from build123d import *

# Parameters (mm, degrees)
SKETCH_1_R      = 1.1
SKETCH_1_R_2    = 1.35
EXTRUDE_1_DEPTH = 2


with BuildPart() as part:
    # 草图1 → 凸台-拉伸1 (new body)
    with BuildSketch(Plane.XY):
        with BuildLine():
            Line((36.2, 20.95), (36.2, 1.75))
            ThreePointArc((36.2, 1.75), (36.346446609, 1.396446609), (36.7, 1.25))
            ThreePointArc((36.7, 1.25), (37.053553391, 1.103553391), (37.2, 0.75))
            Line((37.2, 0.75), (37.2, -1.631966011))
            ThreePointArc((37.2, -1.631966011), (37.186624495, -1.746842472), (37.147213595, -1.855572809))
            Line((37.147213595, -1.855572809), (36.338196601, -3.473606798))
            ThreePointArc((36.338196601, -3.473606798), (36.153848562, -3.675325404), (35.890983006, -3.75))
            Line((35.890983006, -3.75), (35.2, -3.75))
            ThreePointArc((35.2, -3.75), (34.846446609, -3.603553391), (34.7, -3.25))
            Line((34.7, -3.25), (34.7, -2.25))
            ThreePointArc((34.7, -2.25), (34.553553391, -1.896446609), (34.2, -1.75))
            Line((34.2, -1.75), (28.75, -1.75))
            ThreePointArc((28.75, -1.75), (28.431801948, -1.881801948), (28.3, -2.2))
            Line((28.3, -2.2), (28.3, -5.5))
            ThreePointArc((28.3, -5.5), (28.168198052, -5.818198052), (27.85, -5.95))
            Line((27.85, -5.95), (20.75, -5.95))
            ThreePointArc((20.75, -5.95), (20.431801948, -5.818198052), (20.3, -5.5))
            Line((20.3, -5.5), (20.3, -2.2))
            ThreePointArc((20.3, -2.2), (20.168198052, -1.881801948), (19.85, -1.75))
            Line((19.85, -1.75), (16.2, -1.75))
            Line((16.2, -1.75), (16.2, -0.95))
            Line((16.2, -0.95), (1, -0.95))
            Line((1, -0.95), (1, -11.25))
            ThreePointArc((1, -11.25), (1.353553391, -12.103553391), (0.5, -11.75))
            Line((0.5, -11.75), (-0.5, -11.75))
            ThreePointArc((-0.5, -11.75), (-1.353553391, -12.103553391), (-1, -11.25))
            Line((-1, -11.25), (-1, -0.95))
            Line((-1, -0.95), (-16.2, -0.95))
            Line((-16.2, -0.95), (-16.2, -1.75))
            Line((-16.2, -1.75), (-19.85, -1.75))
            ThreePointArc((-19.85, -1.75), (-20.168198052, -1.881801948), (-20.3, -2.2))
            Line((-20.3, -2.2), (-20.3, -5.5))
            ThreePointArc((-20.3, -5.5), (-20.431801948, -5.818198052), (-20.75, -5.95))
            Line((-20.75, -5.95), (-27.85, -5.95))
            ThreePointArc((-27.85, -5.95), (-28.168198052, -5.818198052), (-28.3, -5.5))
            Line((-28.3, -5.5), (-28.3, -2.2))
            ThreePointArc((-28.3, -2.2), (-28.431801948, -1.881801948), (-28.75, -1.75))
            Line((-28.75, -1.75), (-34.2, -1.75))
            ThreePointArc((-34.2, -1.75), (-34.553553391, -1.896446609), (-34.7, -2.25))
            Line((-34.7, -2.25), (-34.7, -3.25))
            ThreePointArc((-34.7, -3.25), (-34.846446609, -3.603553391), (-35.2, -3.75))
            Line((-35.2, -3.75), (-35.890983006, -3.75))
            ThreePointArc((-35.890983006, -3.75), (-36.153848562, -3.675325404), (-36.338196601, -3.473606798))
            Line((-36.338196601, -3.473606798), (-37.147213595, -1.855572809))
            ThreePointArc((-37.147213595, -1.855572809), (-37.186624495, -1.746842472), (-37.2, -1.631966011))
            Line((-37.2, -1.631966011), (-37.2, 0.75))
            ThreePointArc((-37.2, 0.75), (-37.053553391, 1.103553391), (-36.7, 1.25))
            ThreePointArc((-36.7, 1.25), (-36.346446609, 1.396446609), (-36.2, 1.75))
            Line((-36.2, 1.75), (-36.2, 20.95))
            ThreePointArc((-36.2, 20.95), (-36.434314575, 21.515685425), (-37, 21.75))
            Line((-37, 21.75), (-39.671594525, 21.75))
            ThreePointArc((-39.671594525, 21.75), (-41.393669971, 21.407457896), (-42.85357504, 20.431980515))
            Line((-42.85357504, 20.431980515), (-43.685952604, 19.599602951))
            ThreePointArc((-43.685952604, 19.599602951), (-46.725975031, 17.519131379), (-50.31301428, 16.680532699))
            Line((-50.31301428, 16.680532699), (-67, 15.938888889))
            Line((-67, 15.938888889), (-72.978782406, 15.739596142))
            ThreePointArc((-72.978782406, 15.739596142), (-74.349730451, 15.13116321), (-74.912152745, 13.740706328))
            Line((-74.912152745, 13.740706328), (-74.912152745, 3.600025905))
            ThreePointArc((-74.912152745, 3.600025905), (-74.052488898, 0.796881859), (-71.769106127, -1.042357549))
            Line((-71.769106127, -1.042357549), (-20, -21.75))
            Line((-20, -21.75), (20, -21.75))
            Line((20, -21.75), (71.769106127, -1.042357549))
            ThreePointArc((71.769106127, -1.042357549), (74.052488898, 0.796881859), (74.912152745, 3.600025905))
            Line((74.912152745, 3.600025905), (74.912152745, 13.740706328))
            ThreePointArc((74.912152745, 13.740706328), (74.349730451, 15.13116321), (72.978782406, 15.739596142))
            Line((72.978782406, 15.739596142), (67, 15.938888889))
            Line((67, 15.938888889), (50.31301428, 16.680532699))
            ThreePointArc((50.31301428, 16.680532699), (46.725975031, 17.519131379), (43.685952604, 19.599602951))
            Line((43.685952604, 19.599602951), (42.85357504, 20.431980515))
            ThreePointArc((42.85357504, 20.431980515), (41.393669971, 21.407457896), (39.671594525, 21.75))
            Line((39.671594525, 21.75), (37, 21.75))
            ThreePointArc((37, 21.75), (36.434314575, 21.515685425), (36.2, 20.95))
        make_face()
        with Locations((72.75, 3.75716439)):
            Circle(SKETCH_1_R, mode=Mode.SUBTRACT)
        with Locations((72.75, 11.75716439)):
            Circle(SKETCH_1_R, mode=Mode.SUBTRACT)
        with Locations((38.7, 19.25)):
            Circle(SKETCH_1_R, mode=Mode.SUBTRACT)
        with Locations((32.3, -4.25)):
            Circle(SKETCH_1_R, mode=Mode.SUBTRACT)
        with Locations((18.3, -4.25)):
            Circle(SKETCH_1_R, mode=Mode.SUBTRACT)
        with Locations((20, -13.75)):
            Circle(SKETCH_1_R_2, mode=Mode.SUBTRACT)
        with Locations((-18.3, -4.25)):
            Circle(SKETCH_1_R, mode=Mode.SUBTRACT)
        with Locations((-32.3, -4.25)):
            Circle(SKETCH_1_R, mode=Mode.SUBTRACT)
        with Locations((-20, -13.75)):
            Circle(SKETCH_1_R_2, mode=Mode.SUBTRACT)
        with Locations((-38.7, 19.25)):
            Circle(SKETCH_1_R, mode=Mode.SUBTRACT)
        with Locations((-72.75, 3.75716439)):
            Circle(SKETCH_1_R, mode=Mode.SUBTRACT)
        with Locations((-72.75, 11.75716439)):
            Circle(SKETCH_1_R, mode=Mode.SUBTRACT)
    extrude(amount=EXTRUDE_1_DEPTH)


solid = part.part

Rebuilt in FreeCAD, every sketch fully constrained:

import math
import FreeCAD as App
import Part
import Sketcher
from FreeCAD import Vector
Q = App.Units.Quantity

doc = App.newDocument("Part")
body = doc.addObject("PartDesign::Body", "Body")

# Sketch on XY plane
sketch1 = doc.addObject("Sketcher::SketchObject", "Sketch")
body.addObject(sketch1)
sketch1.AttachmentSupport = (doc.XY_Plane, [""])
sketch1.MapMode = "FlatFace"
sketch1.addGeometry([
    Part.LineSegment(Vector(36.2, 20.95, 0), Vector(36.2, 1.75, 0)),  # 0
    Part.ArcOfCircle(Part.Circle(Vector(36.7, 1.75, 0), Vector(0, 0, 1), 0.5), math.radians(180), math.radians(270)),  # 1
    Part.ArcOfCircle(Part.Circle(Vector(36.7, 0.75, 0), Vector(0, 0, 1), 0.5), math.radians(0), math.radians(90)),  # 2
    Part.LineSegment(Vector(37.2, 0.75, 0), Vector(37.2, -1.631966, 0)),  # 3
    Part.ArcOfCircle(Part.Circle(Vector(36.7, -1.631966, 0), Vector(0, 0, 1), 0.5), math.radians(-26.565052), math.radians(0)),  # 4
    Part.LineSegment(Vector(37.147214, -1.855573, 0), Vector(36.338197, -3.473607, 0)),  # 5
    Part.ArcOfCircle(Part.Circle(Vector(35.890983, -3.25, 0), Vector(0, 0, 1), 0.5), math.radians(-90), math.radians(-26.565051)),  # 6
    Part.LineSegment(Vector(35.890983, -3.75, 0), Vector(35.2, -3.75, 0)),  # 7
    Part.ArcOfCircle(Part.Circle(Vector(35.2, -3.25, 0), Vector(0, 0, 1), 0.5), math.radians(180), math.radians(270)),  # 8
    Part.LineSegment(Vector(34.7, -3.25, 0), Vector(34.7, -2.25, 0)),  # 9
    Part.ArcOfCircle(Part.Circle(Vector(34.2, -2.25, 0), Vector(0, 0, 1), 0.5), math.radians(0), math.radians(90)),  # 10
    Part.LineSegment(Vector(34.2, -1.75, 0), Vector(28.75, -1.75, 0)),  # 11
    Part.ArcOfCircle(Part.Circle(Vector(28.75, -2.2, 0), Vector(0, 0, 1), 0.45), math.radians(90), math.radians(180)),  # 12
    Part.LineSegment(Vector(28.3, -2.2, 0), Vector(28.3, -5.5, 0)),  # 13
    Part.ArcOfCircle(Part.Circle(Vector(27.85, -5.5, 0), Vector(0, 0, 1), 0.45), math.radians(-90), math.radians(0)),  # 14
    Part.LineSegment(Vector(27.85, -5.95, 0), Vector(20.75, -5.95, 0)),  # 15
    Part.ArcOfCircle(Part.Circle(Vector(20.75, -5.5, 0), Vector(0, 0, 1), 0.45), math.radians(180), math.radians(270)),  # 16
    Part.LineSegment(Vector(20.3, -5.5, 0), Vector(20.3, -2.2, 0)),  # 17
    Part.ArcOfCircle(Part.Circle(Vector(19.85, -2.2, 0), Vector(0, 0, 1), 0.45), math.radians(0), math.radians(90)),  # 18
    Part.LineSegment(Vector(19.85, -1.75, 0), Vector(16.2, -1.75, 0)),  # 19
    Part.LineSegment(Vector(16.2, -1.75, 0), Vector(16.2, -0.95, 0)),  # 20
    Part.LineSegment(Vector(16.2, -0.95, 0), Vector(1, -0.95, 0)),  # 21
    Part.LineSegment(Vector(1, -0.95, 0), Vector(1, -11.25, 0)),  # 22
    Part.ArcOfCircle(Part.Circle(Vector(1, -11.75, 0), Vector(0, 0, 1), 0.5), math.radians(180), math.radians(450)),  # 23
    Part.LineSegment(Vector(0.5, -11.75, 0), Vector(-0.5, -11.75, 0)),  # 24
    Part.ArcOfCircle(Part.Circle(Vector(-1, -11.75, 0), Vector(0, 0, 1), 0.5), math.radians(90), math.radians(360)),  # 25
    Part.LineSegment(Vector(-1, -11.25, 0), Vector(-1, -0.95, 0)),  # 26
    Part.LineSegment(Vector(-1, -0.95, 0), Vector(-16.2, -0.95, 0)),  # 27
    Part.LineSegment(Vector(-16.2, -0.95, 0), Vector(-16.2, -1.75, 0)),  # 28
    Part.LineSegment(Vector(-16.2, -1.75, 0), Vector(-19.85, -1.75, 0)),  # 29
    Part.ArcOfCircle(Part.Circle(Vector(-19.85, -2.2, 0), Vector(0, 0, 1), 0.45), math.radians(90), math.radians(180)),  # 30
    Part.LineSegment(Vector(-20.3, -2.2, 0), Vector(-20.3, -5.5, 0)),  # 31
    Part.ArcOfCircle(Part.Circle(Vector(-20.75, -5.5, 0), Vector(0, 0, 1), 0.45), math.radians(-90), math.radians(0)),  # 32
    Part.LineSegment(Vector(-20.75, -5.95, 0), Vector(-27.85, -5.95, 0)),  # 33
    Part.ArcOfCircle(Part.Circle(Vector(-27.85, -5.5, 0), Vector(0, 0, 1), 0.45), math.radians(180), math.radians(270)),  # 34
    Part.LineSegment(Vector(-28.3, -5.5, 0), Vector(-28.3, -2.2, 0)),  # 35
    Part.ArcOfCircle(Part.Circle(Vector(-28.75, -2.2, 0), Vector(0, 0, 1), 0.45), math.radians(0), math.radians(90)),  # 36
    Part.LineSegment(Vector(-28.75, -1.75, 0), Vector(-34.2, -1.75, 0)),  # 37
    Part.ArcOfCircle(Part.Circle(Vector(-34.2, -2.25, 0), Vector(0, 0, 1), 0.5), math.radians(90), math.radians(180)),  # 38
    Part.LineSegment(Vector(-34.7, -2.25, 0), Vector(-34.7, -3.25, 0)),  # 39
    Part.ArcOfCircle(Part.Circle(Vector(-35.2, -3.25, 0), Vector(0, 0, 1), 0.5), math.radians(-90), math.radians(0)),  # 40
    Part.LineSegment(Vector(-35.2, -3.75, 0), Vector(-35.890983, -3.75, 0)),  # 41
    Part.ArcOfCircle(Part.Circle(Vector(-35.890983, -3.25, 0), Vector(0, 0, 1), 0.5), math.radians(-153.434949), math.radians(-90)),  # 42
    Part.LineSegment(Vector(-36.338197, -3.473607, 0), Vector(-37.147214, -1.855573, 0)),  # 43
    Part.ArcOfCircle(Part.Circle(Vector(-36.7, -1.631966, 0), Vector(0, 0, 1), 0.5), math.radians(180), math.radians(206.565052)),  # 44
    Part.LineSegment(Vector(-37.2, -1.631966, 0), Vector(-37.2, 0.75, 0)),  # 45
    Part.ArcOfCircle(Part.Circle(Vector(-36.7, 0.75, 0), Vector(0, 0, 1), 0.5), math.radians(90), math.radians(180)),  # 46
    Part.ArcOfCircle(Part.Circle(Vector(-36.7, 1.75, 0), Vector(0, 0, 1), 0.5), math.radians(-90), math.radians(0)),  # 47
    Part.LineSegment(Vector(-36.2, 1.75, 0), Vector(-36.2, 20.95, 0)),  # 48
    Part.ArcOfCircle(Part.Circle(Vector(-37, 20.95, 0), Vector(0, 0, 1), 0.8), math.radians(0), math.radians(90)),  # 49
    Part.LineSegment(Vector(-37, 21.75, 0), Vector(-39.671595, 21.75, 0)),  # 50
    Part.ArcOfCircle(Part.Circle(Vector(-39.671595, 17.25, 0), Vector(0, 0, 1), 4.5), math.radians(90), math.radians(135)),  # 51
    Part.LineSegment(Vector(-42.853575, 20.431981, 0), Vector(-43.685953, 19.599603, 0)),  # 52
    Part.ArcOfCircle(Part.Circle(Vector(-50.75702, 26.670671, 0), Vector(0, 0, 1), 10), math.radians(-87.455196), math.radians(-45)),  # 53
    Part.LineSegment(Vector(-50.313014, 16.680533, 0), Vector(-67, 15.938889, 0)),  # 54
    Part.LineSegment(Vector(-67, 15.938889, 0), Vector(-72.978782, 15.739596, 0)),  # 55
    Part.ArcOfCircle(Part.Circle(Vector(-72.912153, 13.740706, 0), Vector(0, 0, 1), 2), math.radians(91.909152), math.radians(180)),  # 56
    Part.LineSegment(Vector(-74.912153, 13.740706, 0), Vector(-74.912153, 3.600026, 0)),  # 57
    Part.ArcOfCircle(Part.Circle(Vector(-69.912153, 3.600026, 0), Vector(0, 0, 1), 5), math.radians(180), math.radians(248.198591)),  # 58
    Part.LineSegment(Vector(-71.769106, -1.042358, 0), Vector(-20, -21.75, 0)),  # 59
    Part.LineSegment(Vector(-20, -21.75, 0), Vector(20, -21.75, 0)),  # 60
    Part.LineSegment(Vector(20, -21.75, 0), Vector(71.769106, -1.042358, 0)),  # 61
    Part.ArcOfCircle(Part.Circle(Vector(69.912153, 3.600026, 0), Vector(0, 0, 1), 5), math.radians(-68.198591), math.radians(0)),  # 62
    Part.LineSegment(Vector(74.912153, 3.600026, 0), Vector(74.912153, 13.740706, 0)),  # 63
    Part.ArcOfCircle(Part.Circle(Vector(72.912153, 13.740706, 0), Vector(0, 0, 1), 2), math.radians(0), math.radians(88.090848)),  # 64
    Part.LineSegment(Vector(72.978782, 15.739596, 0), Vector(67, 15.938889, 0)),  # 65
    Part.LineSegment(Vector(67, 15.938889, 0), Vector(50.313014, 16.680533, 0)),  # 66
    Part.ArcOfCircle(Part.Circle(Vector(50.75702, 26.670671, 0), Vector(0, 0, 1), 10), math.radians(-135), math.radians(-92.544804)),  # 67
    Part.LineSegment(Vector(43.685953, 19.599603, 0), Vector(42.853575, 20.431981, 0)),  # 68
    Part.ArcOfCircle(Part.Circle(Vector(39.671595, 17.25, 0), Vector(0, 0, 1), 4.5), math.radians(45), math.radians(90)),  # 69
    Part.LineSegment(Vector(39.671595, 21.75, 0), Vector(37, 21.75, 0)),  # 70
    Part.ArcOfCircle(Part.Circle(Vector(37, 20.95, 0), Vector(0, 0, 1), 0.8), math.radians(90), math.radians(180)),  # 71
    Part.Circle(Vector(-20, -13.75, 0), Vector(0, 0, 1), 1.35),  # 72
    Part.Circle(Vector(-32.3, -4.25, 0), Vector(0, 0, 1), 1.1),  # 73
    Part.Circle(Vector(-18.3, -4.25, 0), Vector(0, 0, 1), 1.1),  # 74
    Part.Circle(Vector(20, -13.75, 0), Vector(0, 0, 1), 1.35),  # 75
    Part.Circle(Vector(18.3, -4.25, 0), Vector(0, 0, 1), 1.1),  # 76
    Part.Circle(Vector(32.3, -4.25, 0), Vector(0, 0, 1), 1.1),  # 77
    Part.Circle(Vector(-72.75, 3.757164, 0), Vector(0, 0, 1), 1.1),  # 78
    Part.Circle(Vector(-72.75, 11.757164, 0), Vector(0, 0, 1), 1.1),  # 79
    Part.Circle(Vector(-38.7, 19.25, 0), Vector(0, 0, 1), 1.1),  # 80
    Part.Circle(Vector(72.75, 3.757164, 0), Vector(0, 0, 1), 1.1),  # 81
    Part.Circle(Vector(72.75, 11.757164, 0), Vector(0, 0, 1), 1.1),  # 82
    Part.Circle(Vector(38.7, 19.25, 0), Vector(0, 0, 1), 1.1),  # 83
], False)
sketch1.addConstraint([
    Sketcher.Constraint("Tangent", 0, 2, 1, 1),
    Sketcher.Constraint("Tangent", 1, 2, 2, 2),
    Sketcher.Constraint("Tangent", 2, 1, 3, 1),
    Sketcher.Constraint("Tangent", 3, 2, 4, 2),
    Sketcher.Constraint("Tangent", 4, 1, 5, 1),
    Sketcher.Constraint("Tangent", 5, 2, 6, 2),
    Sketcher.Constraint("Tangent", 6, 1, 7, 1),
    Sketcher.Constraint("Tangent", 7, 2, 8, 2),
    Sketcher.Constraint("Tangent", 8, 1, 9, 1),
    Sketcher.Constraint("Tangent", 9, 2, 10, 1),
    Sketcher.Constraint("Tangent", 10, 2, 11, 1),
    Sketcher.Constraint("Tangent", 11, 2, 12, 1),
    Sketcher.Constraint("Tangent", 12, 2, 13, 1),
    Sketcher.Constraint("Tangent", 13, 2, 14, 2),
    Sketcher.Constraint("Tangent", 14, 1, 15, 1),
    Sketcher.Constraint("Tangent", 15, 2, 16, 2),
    Sketcher.Constraint("Tangent", 16, 1, 17, 1),
    Sketcher.Constraint("Tangent", 17, 2, 18, 1),
    Sketcher.Constraint("Tangent", 18, 2, 19, 1),
    Sketcher.Constraint("Coincident", 19, 2, 20, 1),
    Sketcher.Constraint("Coincident", 20, 2, 21, 1),
    Sketcher.Constraint("Coincident", 21, 2, 22, 1),
    Sketcher.Constraint("Coincident", 22, 2, 23, 2),
    Sketcher.Constraint("Coincident", 23, 1, 24, 1),
    Sketcher.Constraint("Coincident", 24, 2, 25, 2),
    Sketcher.Constraint("Coincident", 25, 1, 26, 1),
    Sketcher.Constraint("Coincident", 26, 2, 27, 1),
    Sketcher.Constraint("Coincident", 27, 2, 28, 1),
    Sketcher.Constraint("Coincident", 28, 2, 29, 1),
    Sketcher.Constraint("Tangent", 29, 2, 30, 1),
    Sketcher.Constraint("Tangent", 30, 2, 31, 1),
    Sketcher.Constraint("Tangent", 31, 2, 32, 2),
    Sketcher.Constraint("Tangent", 32, 1, 33, 1),
    Sketcher.Constraint("Tangent", 33, 2, 34, 2),
    Sketcher.Constraint("Tangent", 34, 1, 35, 1),
    Sketcher.Constraint("Tangent", 35, 2, 36, 1),
    Sketcher.Constraint("Tangent", 36, 2, 37, 1),
    Sketcher.Constraint("Tangent", 37, 2, 38, 1),
    Sketcher.Constraint("Tangent", 38, 2, 39, 1),
    Sketcher.Constraint("Tangent", 39, 2, 40, 2),
    Sketcher.Constraint("Tangent", 40, 1, 41, 1),
    Sketcher.Constraint("Tangent", 41, 2, 42, 2),
    Sketcher.Constraint("Tangent", 42, 1, 43, 1),
    Sketcher.Constraint("Tangent", 43, 2, 44, 2),
    Sketcher.Constraint("Tangent", 44, 1, 45, 1),
    Sketcher.Constraint("Tangent", 45, 2, 46, 2),
    Sketcher.Constraint("Tangent", 46, 1, 47, 1),
    Sketcher.Constraint("Tangent", 47, 2, 48, 1),
    Sketcher.Constraint("Tangent", 48, 2, 49, 1),
    Sketcher.Constraint("Tangent", 49, 2, 50, 1),
    Sketcher.Constraint("Tangent", 50, 2, 51, 1),
    Sketcher.Constraint("Tangent", 51, 2, 52, 1),
    Sketcher.Constraint("Tangent", 52, 2, 53, 2),
    Sketcher.Constraint("Tangent", 53, 1, 54, 1),
    Sketcher.Constraint("Coincident", 54, 2, 55, 1),
    Sketcher.Constraint("Tangent", 55, 2, 56, 1),
    Sketcher.Constraint("Tangent", 56, 2, 57, 1),
    Sketcher.Constraint("Tangent", 57, 2, 58, 1),
    Sketcher.Constraint("Tangent", 58, 2, 59, 1),
    Sketcher.Constraint("Coincident", 59, 2, 60, 1),
    Sketcher.Constraint("Coincident", 60, 2, 61, 1),
    Sketcher.Constraint("Tangent", 61, 2, 62, 1),
    Sketcher.Constraint("Tangent", 62, 2, 63, 1),
    Sketcher.Constraint("Tangent", 63, 2, 64, 1),
    Sketcher.Constraint("Tangent", 64, 2, 65, 1),
    Sketcher.Constraint("Coincident", 65, 2, 66, 1),
    Sketcher.Constraint("Tangent", 66, 2, 67, 2),
    Sketcher.Constraint("Tangent", 67, 1, 68, 1),
    Sketcher.Constraint("Tangent", 68, 2, 69, 1),
    Sketcher.Constraint("Tangent", 69, 2, 70, 1),
    Sketcher.Constraint("Tangent", 70, 2, 71, 1),
    Sketcher.Constraint("Tangent", 71, 2, 0, 1),
    Sketcher.Constraint("Vertical", 0),
    Sketcher.Constraint("Vertical", 3),
    Sketcher.Constraint("Horizontal", 7),
    Sketcher.Constraint("Vertical", 9),
    Sketcher.Constraint("Horizontal", 11),
    Sketcher.Constraint("Vertical", 13),
    Sketcher.Constraint("Horizontal", 15),
    Sketcher.Constraint("Vertical", 17),
    Sketcher.Constraint("Horizontal", 19),
    Sketcher.Constraint("Vertical", 20),
    Sketcher.Constraint("Horizontal", 21),
    Sketcher.Constraint("Vertical", 22),
    Sketcher.Constraint("Horizontal", 24),
    Sketcher.Constraint("Vertical", 26),
    Sketcher.Constraint("Horizontal", 27),
    Sketcher.Constraint("Vertical", 28),
    Sketcher.Constraint("Horizontal", 29),
    Sketcher.Constraint("Vertical", 31),
    Sketcher.Constraint("Horizontal", 33),
    Sketcher.Constraint("Vertical", 35),
    Sketcher.Constraint("Horizontal", 37),
    Sketcher.Constraint("Vertical", 39),
    Sketcher.Constraint("Horizontal", 41),
    Sketcher.Constraint("Vertical", 45),
    Sketcher.Constraint("Vertical", 48),
    Sketcher.Constraint("Horizontal", 50),
    Sketcher.Constraint("Vertical", 57),
    Sketcher.Constraint("Horizontal", 60),
    Sketcher.Constraint("Vertical", 63),
    Sketcher.Constraint("Horizontal", 70),
    Sketcher.Constraint("Equal", 1, 2),
    Sketcher.Constraint("Equal", 2, 4),
    Sketcher.Constraint("Equal", 4, 6),
    Sketcher.Constraint("Equal", 6, 8),
    Sketcher.Constraint("Equal", 8, 10),
    Sketcher.Constraint("Equal", 12, 14),
    Sketcher.Constraint("Equal", 14, 16),
    Sketcher.Constraint("Equal", 16, 18),
    Sketcher.Constraint("Equal", 10, 23),
    Sketcher.Constraint("Equal", 23, 25),
    Sketcher.Constraint("Equal", 18, 30),
    Sketcher.Constraint("Equal", 30, 32),
    Sketcher.Constraint("Equal", 32, 34),
    Sketcher.Constraint("Equal", 34, 36),
    Sketcher.Constraint("Equal", 25, 38),
    Sketcher.Constraint("Equal", 38, 40),
    Sketcher.Constraint("Equal", 40, 42),
    Sketcher.Constraint("Equal", 42, 44),
    Sketcher.Constraint("Equal", 44, 46),
    Sketcher.Constraint("Equal", 46, 47),
    Sketcher.Constraint("Equal", 58, 62),
    Sketcher.Constraint("Equal", 56, 64),
    Sketcher.Constraint("Equal", 53, 67),
    Sketcher.Constraint("Equal", 51, 69),
    Sketcher.Constraint("Equal", 49, 71),
    Sketcher.Constraint("Equal", 73, 74),
    Sketcher.Constraint("Equal", 72, 75),
    Sketcher.Constraint("Equal", 74, 76),
    Sketcher.Constraint("Equal", 76, 77),
    Sketcher.Constraint("Equal", 77, 78),
    Sketcher.Constraint("Equal", 78, 79),
    Sketcher.Constraint("Equal", 79, 80),
    Sketcher.Constraint("Equal", 80, 81),
    Sketcher.Constraint("Equal", 81, 82),
    Sketcher.Constraint("Equal", 82, 83),
    Sketcher.Constraint("Symmetric", 23, 3, 25, 3, -2),
    Sketcher.Constraint("Symmetric", 18, 3, 30, 3, -2),
    Sketcher.Constraint("Symmetric", 14, 3, 34, 3, -2),
    Sketcher.Constraint("Symmetric", 10, 3, 38, 3, -2),
    Sketcher.Constraint("Symmetric", 6, 3, 42, 3, -2),
    Sketcher.Constraint("Symmetric", 4, 3, 44, 3, -2),
    Sketcher.Constraint("Symmetric", 1, 3, 47, 3, -2),
    Sketcher.Constraint("Symmetric", 58, 3, 62, 3, -2),
    Sketcher.Constraint("Symmetric", 53, 3, 67, 3, -2),
    Sketcher.Constraint("Symmetric", 51, 3, 69, 3, -2),
    Sketcher.Constraint("Symmetric", 72, 3, 75, 3, -2),
    Sketcher.Constraint("Symmetric", 74, 3, 76, 3, -2),
    Sketcher.Constraint("Symmetric", 73, 3, 77, 3, -2),
    Sketcher.Constraint("Symmetric", 78, 3, 81, 3, -2),
    Sketcher.Constraint("Symmetric", 79, 3, 82, 3, -2),
    Sketcher.Constraint("Symmetric", 80, 3, 83, 3, -2),
    Sketcher.Constraint("Symmetric", 21, 2, 26, 2, -2),
    Sketcher.Constraint("Symmetric", 55, 2, 64, 2, -2),
    Sketcher.Constraint("Perpendicular", 52, 68),
    Sketcher.Constraint("Horizontal", 12, 3, 18, 3),
    Sketcher.Constraint("Horizontal", 73, 3, 74, 3),
    Sketcher.Constraint("Horizontal", 25, 3, 23, 1),
    Sketcher.Constraint("Horizontal", 58, 2, 61, 2),
    Sketcher.Constraint("Horizontal", 54, 2, 65, 2),
    Sketcher.Constraint("Vertical", 1, 3, 2, 3),
    Sketcher.Constraint("Vertical", 78, 3, 79, 3),
    Sketcher.Constraint("Vertical", 23, 3, 21, 2),
    Sketcher.Constraint("Vertical", 72, 3, 59, 2),
    Sketcher.Constraint("Equal", 21, 27),
    Sketcher.Constraint("Equal", 24, 9),
    Sketcher.Constraint("Radius", 53, Q("10 mm")),
    Sketcher.Constraint("Radius", 56, Q("2 mm")),
    Sketcher.Constraint("Radius", 58, Q("5 mm")),
    Sketcher.Constraint("Diameter", 72, Q("2.7 mm")),
    Sketcher.Constraint("Diameter", 73, Q("2.2 mm")),
    Sketcher.Constraint("Radius", 1, Q("0.5 mm")),
    Sketcher.Constraint("Radius", 49, Q("0.8 mm")),
    Sketcher.Constraint("Radius", 51, Q("4.5 mm")),
    Sketcher.Constraint("DistanceX", 24, 2, 24, 1, Q("1 mm")),
    Sketcher.Constraint("DistanceX", 60, 1, 60, 2, Q("40 mm")),
    Sketcher.Constraint("Radius", 12, Q("0.45 mm")),
    Sketcher.Constraint("DistanceX", 15, 2, 15, 1, Q("7.1 mm")),
    Sketcher.Constraint("DistanceX", 21, 2, 21, 1, Q("15.2 mm")),
    Sketcher.Constraint("DistanceY", 0, 2, 0, 1, Q("19.2 mm")),
    Sketcher.Constraint("DistanceY", 13, 2, 13, 1, Q("3.3 mm")),
    Sketcher.Constraint("DistanceY", 20, 1, 20, 2, Q("0.8 mm")),
    Sketcher.Constraint("DistanceY", 22, 2, 22, 1, Q("10.3 mm")),
    Sketcher.Constraint("DistanceX", 49, 3, -1, 1, Q("37 mm")),
    Sketcher.Constraint("DistanceX", 54, 2, -1, 1, Q("67 mm")),
    Sketcher.Constraint("DistanceX", 11, 2, 11, 1, Q("5.45 mm")),
    Sketcher.Constraint("DistanceX", 19, 2, 19, 1, Q("3.65 mm")),
    Sketcher.Constraint("DistanceY", 12, 3, -1, 1, Q("2.2 mm")),
    Sketcher.Constraint("DistanceX", 73, 3, -1, 1, Q("32.3 mm")),
    Sketcher.Constraint("DistanceX", 74, 3, -1, 1, Q("18.3 mm")),
    Sketcher.Constraint("DistanceX", 80, 3, -1, 1, Q("38.7 mm")),
    Sketcher.Constraint("DistanceY", -1, 1, 1, 3, Q("1.75 mm")),
    Sketcher.Constraint("DistanceY", 72, 3, -1, 1, Q("13.75 mm")),
    Sketcher.Constraint("DistanceY", 73, 3, -1, 1, Q("4.25 mm")),
    Sketcher.Constraint("DistanceX", 78, 3, -1, 1, Q("72.75 mm")),
    Sketcher.Constraint("DistanceY", -1, 1, 80, 3, Q("19.25 mm")),
    Sketcher.Constraint("DistanceY", 59, 2, -1, 1, Q("21.75 mm")),
    Sketcher.Constraint("DistanceY", 57, 2, 57, 1, Q("10.14068 mm")),
    Sketcher.Constraint("Distance", 52, Q("1.17716 mm")),
    Sketcher.Constraint("Distance", 54, Q("16.703459 mm")),
    Sketcher.Constraint("DistanceX", 7, 2, 7, 1, Q("0.690983 mm")),
    Sketcher.Constraint("DistanceX", 50, 2, 50, 1, Q("2.671595 mm")),
    Sketcher.Constraint("DistanceY", 3, 2, 3, 1, Q("2.381966 mm")),
    Sketcher.Constraint("Distance", 55, Q("5.982103 mm")),
    Sketcher.Constraint("Distance", 59, Q("55.757034 mm")),
    Sketcher.Constraint("DistanceY", -1, 1, 78, 3, Q("3.757164 mm")),
    Sketcher.Constraint("DistanceY", -1, 1, 79, 3, Q("11.757164 mm")),
])
pad1 = doc.addObject("PartDesign::Pad", "Pad")
body.addObject(pad1)
pad1.Profile = sketch1
pad1.Length = 2

doc.recompute()
